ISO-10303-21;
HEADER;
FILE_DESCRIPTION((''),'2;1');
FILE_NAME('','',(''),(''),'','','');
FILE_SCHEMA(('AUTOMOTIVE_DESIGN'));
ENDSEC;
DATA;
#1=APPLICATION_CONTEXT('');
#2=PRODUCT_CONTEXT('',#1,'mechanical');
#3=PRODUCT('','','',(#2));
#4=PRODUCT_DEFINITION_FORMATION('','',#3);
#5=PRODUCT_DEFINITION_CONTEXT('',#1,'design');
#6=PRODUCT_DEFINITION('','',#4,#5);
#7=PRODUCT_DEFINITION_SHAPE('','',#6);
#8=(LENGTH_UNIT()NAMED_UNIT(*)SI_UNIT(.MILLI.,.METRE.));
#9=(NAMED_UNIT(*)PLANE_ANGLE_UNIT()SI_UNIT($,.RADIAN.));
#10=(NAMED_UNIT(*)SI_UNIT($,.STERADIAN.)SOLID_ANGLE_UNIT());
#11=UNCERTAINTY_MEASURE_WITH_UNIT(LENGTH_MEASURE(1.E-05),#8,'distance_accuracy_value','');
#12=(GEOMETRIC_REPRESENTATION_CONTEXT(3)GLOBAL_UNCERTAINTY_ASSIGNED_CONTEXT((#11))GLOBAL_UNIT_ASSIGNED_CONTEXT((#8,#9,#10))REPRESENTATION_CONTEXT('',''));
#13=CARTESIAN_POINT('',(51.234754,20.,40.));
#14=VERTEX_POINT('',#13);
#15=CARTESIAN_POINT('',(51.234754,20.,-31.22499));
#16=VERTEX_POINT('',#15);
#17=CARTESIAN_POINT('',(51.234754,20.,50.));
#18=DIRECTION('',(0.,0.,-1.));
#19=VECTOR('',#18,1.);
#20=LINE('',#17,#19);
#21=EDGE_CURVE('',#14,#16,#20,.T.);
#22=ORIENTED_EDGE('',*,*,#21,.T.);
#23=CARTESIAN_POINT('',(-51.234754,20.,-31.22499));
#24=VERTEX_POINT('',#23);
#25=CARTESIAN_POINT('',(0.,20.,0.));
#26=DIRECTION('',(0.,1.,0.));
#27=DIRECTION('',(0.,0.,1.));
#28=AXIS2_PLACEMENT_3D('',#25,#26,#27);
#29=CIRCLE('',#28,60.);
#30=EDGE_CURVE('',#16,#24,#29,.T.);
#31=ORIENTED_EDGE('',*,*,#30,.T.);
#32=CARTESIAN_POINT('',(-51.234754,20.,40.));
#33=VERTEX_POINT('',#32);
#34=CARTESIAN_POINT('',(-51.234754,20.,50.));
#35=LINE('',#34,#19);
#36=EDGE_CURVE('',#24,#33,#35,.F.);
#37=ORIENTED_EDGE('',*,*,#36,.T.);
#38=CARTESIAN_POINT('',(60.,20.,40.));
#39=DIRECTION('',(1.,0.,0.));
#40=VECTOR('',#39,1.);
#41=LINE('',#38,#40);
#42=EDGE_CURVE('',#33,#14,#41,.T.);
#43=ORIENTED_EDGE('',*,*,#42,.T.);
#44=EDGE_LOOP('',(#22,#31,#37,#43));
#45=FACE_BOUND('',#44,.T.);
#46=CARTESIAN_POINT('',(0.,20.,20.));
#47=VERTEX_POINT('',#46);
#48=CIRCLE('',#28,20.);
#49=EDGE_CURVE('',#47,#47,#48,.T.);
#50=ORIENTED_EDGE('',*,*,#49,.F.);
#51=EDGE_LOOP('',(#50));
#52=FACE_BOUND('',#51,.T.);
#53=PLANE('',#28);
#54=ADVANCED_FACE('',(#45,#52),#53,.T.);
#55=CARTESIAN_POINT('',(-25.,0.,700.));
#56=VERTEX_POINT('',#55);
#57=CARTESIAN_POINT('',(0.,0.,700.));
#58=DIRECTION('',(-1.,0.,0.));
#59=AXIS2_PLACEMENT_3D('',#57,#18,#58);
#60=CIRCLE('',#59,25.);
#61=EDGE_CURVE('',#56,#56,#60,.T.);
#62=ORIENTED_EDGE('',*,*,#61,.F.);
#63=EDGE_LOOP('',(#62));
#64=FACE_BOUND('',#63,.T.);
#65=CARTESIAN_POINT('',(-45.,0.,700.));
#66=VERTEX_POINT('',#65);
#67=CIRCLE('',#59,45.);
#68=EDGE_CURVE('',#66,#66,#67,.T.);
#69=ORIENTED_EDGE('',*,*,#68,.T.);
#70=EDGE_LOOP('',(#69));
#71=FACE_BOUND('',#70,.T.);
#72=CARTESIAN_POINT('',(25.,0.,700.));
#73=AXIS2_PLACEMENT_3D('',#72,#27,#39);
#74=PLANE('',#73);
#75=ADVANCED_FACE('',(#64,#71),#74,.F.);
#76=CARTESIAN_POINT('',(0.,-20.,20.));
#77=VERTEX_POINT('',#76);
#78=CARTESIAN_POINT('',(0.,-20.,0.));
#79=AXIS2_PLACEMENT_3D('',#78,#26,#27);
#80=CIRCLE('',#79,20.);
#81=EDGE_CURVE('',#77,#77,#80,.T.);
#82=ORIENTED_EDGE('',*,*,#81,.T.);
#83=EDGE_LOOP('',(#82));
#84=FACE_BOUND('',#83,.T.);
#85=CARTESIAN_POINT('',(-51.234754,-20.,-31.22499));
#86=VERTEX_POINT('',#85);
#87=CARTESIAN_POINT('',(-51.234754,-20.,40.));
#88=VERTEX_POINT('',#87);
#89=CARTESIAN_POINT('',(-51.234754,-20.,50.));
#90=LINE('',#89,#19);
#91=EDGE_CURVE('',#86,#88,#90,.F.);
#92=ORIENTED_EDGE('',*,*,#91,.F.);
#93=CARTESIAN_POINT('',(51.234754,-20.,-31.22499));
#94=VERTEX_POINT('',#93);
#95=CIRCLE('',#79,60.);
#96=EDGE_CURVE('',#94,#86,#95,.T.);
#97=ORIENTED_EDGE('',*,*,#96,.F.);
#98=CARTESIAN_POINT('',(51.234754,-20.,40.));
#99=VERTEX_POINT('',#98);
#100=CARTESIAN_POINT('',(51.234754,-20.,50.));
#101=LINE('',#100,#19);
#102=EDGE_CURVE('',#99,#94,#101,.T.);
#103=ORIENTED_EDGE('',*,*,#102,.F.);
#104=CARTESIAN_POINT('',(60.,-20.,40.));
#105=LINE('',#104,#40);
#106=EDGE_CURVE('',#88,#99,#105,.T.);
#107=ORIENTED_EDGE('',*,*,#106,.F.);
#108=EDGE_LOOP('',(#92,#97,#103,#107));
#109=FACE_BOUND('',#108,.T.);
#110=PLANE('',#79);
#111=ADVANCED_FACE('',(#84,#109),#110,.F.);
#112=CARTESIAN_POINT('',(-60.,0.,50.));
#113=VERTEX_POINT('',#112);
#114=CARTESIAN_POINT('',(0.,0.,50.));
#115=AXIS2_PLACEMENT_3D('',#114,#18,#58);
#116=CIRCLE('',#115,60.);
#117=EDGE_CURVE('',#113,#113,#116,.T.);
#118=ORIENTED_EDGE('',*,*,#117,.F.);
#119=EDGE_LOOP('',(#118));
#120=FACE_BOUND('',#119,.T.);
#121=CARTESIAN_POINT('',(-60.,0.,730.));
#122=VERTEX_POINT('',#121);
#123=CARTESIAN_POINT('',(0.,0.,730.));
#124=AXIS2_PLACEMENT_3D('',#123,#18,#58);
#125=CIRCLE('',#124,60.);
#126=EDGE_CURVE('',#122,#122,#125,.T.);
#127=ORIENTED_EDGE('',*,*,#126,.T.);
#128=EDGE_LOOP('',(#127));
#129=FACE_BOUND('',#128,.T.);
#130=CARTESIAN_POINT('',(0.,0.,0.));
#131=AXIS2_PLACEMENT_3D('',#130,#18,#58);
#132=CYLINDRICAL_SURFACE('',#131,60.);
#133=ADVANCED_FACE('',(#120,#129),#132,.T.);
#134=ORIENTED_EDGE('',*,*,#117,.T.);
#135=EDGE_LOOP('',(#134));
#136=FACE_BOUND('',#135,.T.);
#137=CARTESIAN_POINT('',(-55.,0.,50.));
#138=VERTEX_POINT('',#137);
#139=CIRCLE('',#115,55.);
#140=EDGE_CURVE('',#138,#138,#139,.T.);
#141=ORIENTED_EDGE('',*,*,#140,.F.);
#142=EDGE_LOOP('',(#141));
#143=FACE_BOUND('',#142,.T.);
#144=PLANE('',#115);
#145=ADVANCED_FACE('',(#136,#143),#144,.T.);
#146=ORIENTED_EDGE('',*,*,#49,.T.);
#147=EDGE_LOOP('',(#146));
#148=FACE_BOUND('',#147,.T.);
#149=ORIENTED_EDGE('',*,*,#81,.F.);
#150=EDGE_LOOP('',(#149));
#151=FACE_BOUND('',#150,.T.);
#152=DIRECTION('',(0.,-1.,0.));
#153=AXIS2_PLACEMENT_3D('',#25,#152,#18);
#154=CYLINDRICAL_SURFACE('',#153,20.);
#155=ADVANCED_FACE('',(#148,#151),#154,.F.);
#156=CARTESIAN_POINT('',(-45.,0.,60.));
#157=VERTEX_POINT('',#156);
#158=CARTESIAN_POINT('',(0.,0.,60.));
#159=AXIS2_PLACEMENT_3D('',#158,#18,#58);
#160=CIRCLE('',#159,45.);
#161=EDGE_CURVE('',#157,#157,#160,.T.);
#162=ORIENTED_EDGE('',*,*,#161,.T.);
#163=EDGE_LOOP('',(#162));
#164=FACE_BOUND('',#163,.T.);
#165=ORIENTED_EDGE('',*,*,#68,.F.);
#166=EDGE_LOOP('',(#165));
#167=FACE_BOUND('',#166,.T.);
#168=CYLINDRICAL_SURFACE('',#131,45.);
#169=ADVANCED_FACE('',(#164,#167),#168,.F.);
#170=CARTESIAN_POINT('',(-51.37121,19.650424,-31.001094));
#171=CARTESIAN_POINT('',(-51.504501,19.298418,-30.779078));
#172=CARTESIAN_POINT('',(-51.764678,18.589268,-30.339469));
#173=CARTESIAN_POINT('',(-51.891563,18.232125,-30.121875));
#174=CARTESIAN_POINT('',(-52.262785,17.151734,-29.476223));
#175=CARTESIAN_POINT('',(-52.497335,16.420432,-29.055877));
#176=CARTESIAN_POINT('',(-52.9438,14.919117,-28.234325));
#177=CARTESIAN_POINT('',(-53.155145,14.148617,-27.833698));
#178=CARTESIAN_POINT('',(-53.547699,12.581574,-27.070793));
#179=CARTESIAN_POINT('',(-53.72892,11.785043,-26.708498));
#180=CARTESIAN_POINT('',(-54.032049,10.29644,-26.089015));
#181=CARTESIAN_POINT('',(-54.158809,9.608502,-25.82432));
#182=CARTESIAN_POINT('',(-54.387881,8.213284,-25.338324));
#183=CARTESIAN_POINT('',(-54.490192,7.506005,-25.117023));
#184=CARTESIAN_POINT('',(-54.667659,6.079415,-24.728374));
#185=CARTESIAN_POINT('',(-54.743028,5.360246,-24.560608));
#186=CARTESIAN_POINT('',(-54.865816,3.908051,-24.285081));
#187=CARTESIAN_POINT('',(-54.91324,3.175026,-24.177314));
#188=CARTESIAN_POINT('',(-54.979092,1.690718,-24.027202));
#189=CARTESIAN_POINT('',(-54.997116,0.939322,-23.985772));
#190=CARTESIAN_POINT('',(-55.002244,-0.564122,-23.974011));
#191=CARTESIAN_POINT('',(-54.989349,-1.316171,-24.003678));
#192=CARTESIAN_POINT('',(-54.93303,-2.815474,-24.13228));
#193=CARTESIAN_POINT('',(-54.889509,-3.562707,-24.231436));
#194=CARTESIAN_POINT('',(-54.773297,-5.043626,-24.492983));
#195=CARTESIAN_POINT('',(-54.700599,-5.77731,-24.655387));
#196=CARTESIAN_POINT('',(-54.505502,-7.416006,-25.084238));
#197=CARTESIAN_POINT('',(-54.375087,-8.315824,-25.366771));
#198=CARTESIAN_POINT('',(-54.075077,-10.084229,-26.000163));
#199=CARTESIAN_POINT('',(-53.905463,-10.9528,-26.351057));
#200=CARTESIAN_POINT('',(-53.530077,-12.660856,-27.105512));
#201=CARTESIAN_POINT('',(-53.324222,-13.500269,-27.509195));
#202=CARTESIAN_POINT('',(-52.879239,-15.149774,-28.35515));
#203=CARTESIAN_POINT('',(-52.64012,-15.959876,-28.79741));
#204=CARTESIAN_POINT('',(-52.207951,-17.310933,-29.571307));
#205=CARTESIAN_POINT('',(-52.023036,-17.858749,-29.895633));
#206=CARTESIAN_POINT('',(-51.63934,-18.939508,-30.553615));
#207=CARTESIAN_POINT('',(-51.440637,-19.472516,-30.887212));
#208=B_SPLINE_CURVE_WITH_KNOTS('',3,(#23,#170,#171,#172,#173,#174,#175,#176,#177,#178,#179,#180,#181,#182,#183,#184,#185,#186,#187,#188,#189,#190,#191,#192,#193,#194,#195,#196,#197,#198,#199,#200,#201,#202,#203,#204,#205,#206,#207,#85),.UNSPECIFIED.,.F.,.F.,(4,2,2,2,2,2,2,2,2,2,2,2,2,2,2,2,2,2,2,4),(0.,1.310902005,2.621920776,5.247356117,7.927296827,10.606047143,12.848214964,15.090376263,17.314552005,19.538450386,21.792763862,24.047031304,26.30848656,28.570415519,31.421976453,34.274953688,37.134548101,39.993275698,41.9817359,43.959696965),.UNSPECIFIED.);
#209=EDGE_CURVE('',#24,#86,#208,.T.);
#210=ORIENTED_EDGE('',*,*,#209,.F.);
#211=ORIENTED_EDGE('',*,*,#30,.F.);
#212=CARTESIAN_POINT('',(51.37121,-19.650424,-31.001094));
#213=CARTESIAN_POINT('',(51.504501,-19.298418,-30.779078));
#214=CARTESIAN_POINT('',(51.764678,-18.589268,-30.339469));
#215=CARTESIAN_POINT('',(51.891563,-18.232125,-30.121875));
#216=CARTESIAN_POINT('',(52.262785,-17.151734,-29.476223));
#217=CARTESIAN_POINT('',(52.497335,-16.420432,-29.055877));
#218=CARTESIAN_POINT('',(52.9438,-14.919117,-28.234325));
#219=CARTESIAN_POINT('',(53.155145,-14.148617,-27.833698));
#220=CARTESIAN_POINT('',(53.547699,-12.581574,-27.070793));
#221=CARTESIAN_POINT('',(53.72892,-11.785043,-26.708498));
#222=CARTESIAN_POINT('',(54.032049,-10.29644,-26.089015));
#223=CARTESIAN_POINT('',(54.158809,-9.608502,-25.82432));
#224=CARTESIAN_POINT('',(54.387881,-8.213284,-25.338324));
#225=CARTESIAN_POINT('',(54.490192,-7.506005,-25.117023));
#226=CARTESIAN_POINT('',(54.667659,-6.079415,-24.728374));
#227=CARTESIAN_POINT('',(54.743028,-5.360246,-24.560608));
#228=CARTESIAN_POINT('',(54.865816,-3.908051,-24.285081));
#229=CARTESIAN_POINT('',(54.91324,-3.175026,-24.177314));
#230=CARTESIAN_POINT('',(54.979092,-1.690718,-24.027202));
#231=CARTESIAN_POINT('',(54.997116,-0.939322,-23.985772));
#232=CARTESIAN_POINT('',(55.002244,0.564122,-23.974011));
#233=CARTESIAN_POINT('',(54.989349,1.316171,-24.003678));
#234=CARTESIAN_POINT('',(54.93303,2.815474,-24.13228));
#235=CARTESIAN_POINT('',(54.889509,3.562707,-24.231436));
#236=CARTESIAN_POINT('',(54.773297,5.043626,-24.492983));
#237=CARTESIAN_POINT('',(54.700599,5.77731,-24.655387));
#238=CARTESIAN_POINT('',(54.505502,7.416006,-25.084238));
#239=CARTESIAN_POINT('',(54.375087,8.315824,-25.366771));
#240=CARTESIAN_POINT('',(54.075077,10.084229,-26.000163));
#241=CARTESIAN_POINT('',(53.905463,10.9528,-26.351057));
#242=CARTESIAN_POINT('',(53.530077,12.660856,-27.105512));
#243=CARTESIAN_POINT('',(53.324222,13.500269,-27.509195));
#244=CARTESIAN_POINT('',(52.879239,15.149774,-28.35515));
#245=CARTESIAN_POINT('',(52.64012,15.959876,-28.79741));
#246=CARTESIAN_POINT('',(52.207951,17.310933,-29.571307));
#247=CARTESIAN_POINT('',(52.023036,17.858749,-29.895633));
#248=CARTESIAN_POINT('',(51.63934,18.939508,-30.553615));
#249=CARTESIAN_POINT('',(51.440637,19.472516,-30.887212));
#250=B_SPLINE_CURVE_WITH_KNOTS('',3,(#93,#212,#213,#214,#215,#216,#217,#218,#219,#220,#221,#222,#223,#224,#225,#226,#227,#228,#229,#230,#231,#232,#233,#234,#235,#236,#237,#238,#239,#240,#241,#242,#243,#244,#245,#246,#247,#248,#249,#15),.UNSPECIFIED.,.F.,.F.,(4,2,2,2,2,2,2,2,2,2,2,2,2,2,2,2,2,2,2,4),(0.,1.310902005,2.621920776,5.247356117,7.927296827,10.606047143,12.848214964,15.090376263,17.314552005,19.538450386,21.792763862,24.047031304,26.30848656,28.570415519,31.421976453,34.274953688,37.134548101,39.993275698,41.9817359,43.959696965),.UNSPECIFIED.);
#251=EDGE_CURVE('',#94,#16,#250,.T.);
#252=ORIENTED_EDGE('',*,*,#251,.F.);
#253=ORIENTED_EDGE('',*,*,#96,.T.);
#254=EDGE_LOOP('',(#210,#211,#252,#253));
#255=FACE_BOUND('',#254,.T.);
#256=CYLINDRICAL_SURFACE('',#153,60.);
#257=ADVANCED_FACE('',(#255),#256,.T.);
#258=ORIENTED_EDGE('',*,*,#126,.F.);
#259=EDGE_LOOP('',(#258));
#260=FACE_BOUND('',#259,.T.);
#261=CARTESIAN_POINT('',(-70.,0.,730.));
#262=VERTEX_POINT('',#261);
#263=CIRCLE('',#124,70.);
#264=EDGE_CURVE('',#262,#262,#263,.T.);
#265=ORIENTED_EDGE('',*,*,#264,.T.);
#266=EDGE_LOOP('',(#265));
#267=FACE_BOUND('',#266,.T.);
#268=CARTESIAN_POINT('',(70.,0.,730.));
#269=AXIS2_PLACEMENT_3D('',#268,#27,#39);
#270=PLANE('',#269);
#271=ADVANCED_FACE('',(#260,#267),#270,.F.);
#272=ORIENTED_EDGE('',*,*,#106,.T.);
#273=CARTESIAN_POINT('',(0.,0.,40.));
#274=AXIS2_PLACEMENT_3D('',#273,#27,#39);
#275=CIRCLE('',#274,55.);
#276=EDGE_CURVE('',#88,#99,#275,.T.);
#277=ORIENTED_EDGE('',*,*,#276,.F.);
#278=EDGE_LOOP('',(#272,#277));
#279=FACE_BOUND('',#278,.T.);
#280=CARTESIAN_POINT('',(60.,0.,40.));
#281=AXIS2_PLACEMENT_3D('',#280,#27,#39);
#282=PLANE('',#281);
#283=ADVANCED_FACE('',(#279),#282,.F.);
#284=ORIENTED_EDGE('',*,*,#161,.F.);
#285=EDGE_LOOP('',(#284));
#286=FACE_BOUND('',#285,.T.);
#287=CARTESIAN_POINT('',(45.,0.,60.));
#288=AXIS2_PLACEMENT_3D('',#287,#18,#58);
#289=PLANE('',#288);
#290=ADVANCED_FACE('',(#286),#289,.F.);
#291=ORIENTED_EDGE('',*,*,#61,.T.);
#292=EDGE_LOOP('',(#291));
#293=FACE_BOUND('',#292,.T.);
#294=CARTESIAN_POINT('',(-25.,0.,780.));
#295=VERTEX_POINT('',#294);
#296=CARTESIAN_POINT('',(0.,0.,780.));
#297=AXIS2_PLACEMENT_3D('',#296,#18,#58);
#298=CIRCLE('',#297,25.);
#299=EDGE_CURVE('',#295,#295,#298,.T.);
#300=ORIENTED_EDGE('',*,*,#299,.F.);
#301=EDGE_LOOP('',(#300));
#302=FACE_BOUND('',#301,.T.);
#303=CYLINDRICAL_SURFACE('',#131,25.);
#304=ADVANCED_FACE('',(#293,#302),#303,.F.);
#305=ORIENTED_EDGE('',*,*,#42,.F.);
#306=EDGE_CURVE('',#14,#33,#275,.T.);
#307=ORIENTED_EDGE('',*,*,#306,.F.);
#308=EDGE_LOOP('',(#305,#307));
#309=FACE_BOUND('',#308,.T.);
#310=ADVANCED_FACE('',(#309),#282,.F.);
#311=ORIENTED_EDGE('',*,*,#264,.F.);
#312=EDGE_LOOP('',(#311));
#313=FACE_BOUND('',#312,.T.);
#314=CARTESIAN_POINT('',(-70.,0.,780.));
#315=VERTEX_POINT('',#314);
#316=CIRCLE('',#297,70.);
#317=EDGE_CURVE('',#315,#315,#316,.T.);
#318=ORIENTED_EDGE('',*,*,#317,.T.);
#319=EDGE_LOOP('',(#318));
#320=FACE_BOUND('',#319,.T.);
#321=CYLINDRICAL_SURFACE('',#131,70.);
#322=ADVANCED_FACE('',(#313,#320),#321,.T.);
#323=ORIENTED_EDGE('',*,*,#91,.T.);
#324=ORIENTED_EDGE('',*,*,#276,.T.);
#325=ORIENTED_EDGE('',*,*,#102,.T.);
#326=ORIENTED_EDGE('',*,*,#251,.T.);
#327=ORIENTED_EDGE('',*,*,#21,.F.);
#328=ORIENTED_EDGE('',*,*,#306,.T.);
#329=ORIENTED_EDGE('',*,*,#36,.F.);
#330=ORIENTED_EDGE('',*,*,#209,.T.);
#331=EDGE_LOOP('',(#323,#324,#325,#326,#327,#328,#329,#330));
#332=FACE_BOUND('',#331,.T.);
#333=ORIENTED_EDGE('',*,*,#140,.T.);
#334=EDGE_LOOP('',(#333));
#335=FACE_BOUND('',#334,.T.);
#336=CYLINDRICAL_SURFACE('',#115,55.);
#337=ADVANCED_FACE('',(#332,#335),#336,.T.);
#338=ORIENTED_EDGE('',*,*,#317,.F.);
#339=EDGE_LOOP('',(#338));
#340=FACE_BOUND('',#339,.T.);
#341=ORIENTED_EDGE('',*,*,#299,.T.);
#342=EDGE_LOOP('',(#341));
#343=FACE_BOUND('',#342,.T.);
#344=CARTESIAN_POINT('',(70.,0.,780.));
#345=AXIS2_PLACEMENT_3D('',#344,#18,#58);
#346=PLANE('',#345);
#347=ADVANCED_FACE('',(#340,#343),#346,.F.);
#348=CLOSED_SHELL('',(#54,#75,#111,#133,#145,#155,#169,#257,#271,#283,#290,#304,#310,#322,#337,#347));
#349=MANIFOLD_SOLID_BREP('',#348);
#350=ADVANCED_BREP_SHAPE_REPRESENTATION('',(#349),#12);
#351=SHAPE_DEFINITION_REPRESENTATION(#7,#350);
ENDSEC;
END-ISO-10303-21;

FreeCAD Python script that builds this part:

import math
import FreeCAD as App
import Part
import Sketcher

V = App.Vector

doc = App.newDocument("Part")
body = doc.addObject("PartDesign::Body", "Body")

sketch1 = body.newObject("Sketcher::SketchObject", "Sketch")
sketch1.AttachmentSupport = (doc.getObject("XZ_Plane"), [""])
sketch1.MapMode = "FlatFace"
sketch1.addGeometry(Part.LineSegment(V(70, 780, 0), V(70, 730, 0)), False)
sketch1.addGeometry(Part.LineSegment(V(70, 730, 0), V(60, 730, 0)), False)
sketch1.addGeometry(Part.LineSegment(V(60, 730, 0), V(60, 40, 0)), False)
sketch1.addGeometry(Part.LineSegment(V(60, 40, 0), V(0, 40, 0)), False)
sketch1.addGeometry(Part.LineSegment(V(0, 40, 0), V(0, 60, 0)), False)
sketch1.addGeometry(Part.LineSegment(V(0, 60, 0), V(45, 60, 0)), False)
sketch1.addGeometry(Part.LineSegment(V(45, 60, 0), V(45, 700, 0)), False)
sketch1.addGeometry(Part.LineSegment(V(45, 700, 0), V(25, 700, 0)), False)
sketch1.addGeometry(Part.LineSegment(V(25, 700, 0), V(25, 780, 0)), False)
sketch1.addGeometry(Part.LineSegment(V(25, 780, 0), V(70, 780, 0)), False)
sketch1.addConstraint(Sketcher.Constraint("Coincident", 0, 2, 1, 1))
sketch1.addConstraint(Sketcher.Constraint("Coincident", 1, 2, 2, 1))
sketch1.addConstraint(Sketcher.Constraint("Coincident", 2, 2, 3, 1))
sketch1.addConstraint(Sketcher.Constraint("Coincident", 3, 2, 4, 1))
sketch1.addConstraint(Sketcher.Constraint("Coincident", 4, 2, 5, 1))
sketch1.addConstraint(Sketcher.Constraint("Coincident", 5, 2, 6, 1))
sketch1.addConstraint(Sketcher.Constraint("Coincident", 6, 2, 7, 1))
sketch1.addConstraint(Sketcher.Constraint("Coincident", 7, 2, 8, 1))
sketch1.addConstraint(Sketcher.Constraint("Coincident", 8, 2, 9, 1))
sketch1.addConstraint(Sketcher.Constraint("Coincident", 9, 2, 0, 1))
sketch1.addConstraint(Sketcher.Constraint("Vertical", 0))
sketch1.addConstraint(Sketcher.Constraint("Horizontal", 1))
sketch1.addConstraint(Sketcher.Constraint("Vertical", 2))
sketch1.addConstraint(Sketcher.Constraint("Horizontal", 3))
sketch1.addConstraint(Sketcher.Constraint("Vertical", 4))
sketch1.addConstraint(Sketcher.Constraint("Horizontal", 5))
sketch1.addConstraint(Sketcher.Constraint("Vertical", 6))
sketch1.addConstraint(Sketcher.Constraint("Horizontal", 7))
sketch1.addConstraint(Sketcher.Constraint("Vertical", 8))
sketch1.addConstraint(Sketcher.Constraint("Horizontal", 9))
sketch1.addConstraint(Sketcher.Constraint("PointOnObject", 3, 2, -2))
sketch1.addConstraint(Sketcher.Constraint("Equal", 5, 9))
sketch1.addConstraint(Sketcher.Constraint("Equal", 7, 4))
sketch1.addConstraint(Sketcher.Constraint("DistanceX", 1, 2, 1, 1, 10.0))
sketch1.addConstraint(Sketcher.Constraint("DistanceX", 3, 2, 3, 1, 60.0))
sketch1.addConstraint(Sketcher.Constraint("DistanceX", 5, 1, 5, 2, 45.0))
sketch1.addConstraint(Sketcher.Constraint("DistanceY", 0, 2, 0, 1, 50.0))
sketch1.addConstraint(Sketcher.Constraint("DistanceY", 2, 2, 2, 1, 690.0))
sketch1.addConstraint(Sketcher.Constraint("DistanceY", 6, 1, 6, 2, 640.0))
sketch1.addConstraint(Sketcher.Constraint("DistanceY", -1, 1, 0, 2, 730.0))
revolution = body.newObject("PartDesign::Revolution", "Revolution")
revolution.Profile = sketch1
revolution.ReferenceAxis = (sketch1, ["V_Axis"])
revolution.Angle = 360

sketch2 = body.newObject("Sketcher::SketchObject", "Sketch001")
sketch2.AttachmentSupport = (doc.getObject("XZ_Plane"), [""])
sketch2.MapMode = "FlatFace"
sketch2.addGeometry(Part.LineSegment(V(60, 40, 0), V(60, 0, 0)), False)
sketch2.addGeometry(Part.ArcOfCircle(Part.Circle(V(0, 0, 0), V(0, 0, 1), 60), math.radians(180), math.radians(360)), False)
sketch2.addGeometry(Part.LineSegment(V(-60, 0, 0), V(-60, 40, 0)), False)
sketch2.addGeometry(Part.LineSegment(V(-60, 40, 0), V(60, 40, 0)), False)
sketch2.addGeometry(Part.Circle(V(0, 0, 0), V(0, 0, 1), 20), False)
sketch2.addConstraint(Sketcher.Constraint("Tangent", 0, 2, 1, 2))
sketch2.addConstraint(Sketcher.Constraint("Tangent", 1, 1, 2, 1))
sketch2.addConstraint(Sketcher.Constraint("Coincident", 2, 2, 3, 1))
sketch2.addConstraint(Sketcher.Constraint("Coincident", 3, 2, 0, 1))
sketch2.addConstraint(Sketcher.Constraint("Vertical", 0))
sketch2.addConstraint(Sketcher.Constraint("Vertical", 2))
sketch2.addConstraint(Sketcher.Constraint("Horizontal", 3))
sketch2.addConstraint(Sketcher.Constraint("Coincident", 1, 3, -1, 1))
sketch2.addConstraint(Sketcher.Constraint("Coincident", 4, 3, -1, 1))
sketch2.addConstraint(Sketcher.Constraint("Diameter", 4, 40.0))
sketch2.addConstraint(Sketcher.Constraint("Radius", 1, 60.0))
sketch2.addConstraint(Sketcher.Constraint("DistanceY", 0, 2, 0, 1, 40.0))
pad1 = body.newObject("PartDesign::Pad", "Pad")
pad1.Profile = sketch2
pad1.Length = 40
pad1.Midplane = True

sketch3 = body.newObject("Sketcher::SketchObject", "Sketch002")
sketch3.AttachmentSupport = (doc.getObject("XY_Plane"), [""])
sketch3.MapMode = "FlatFace"
sketch3.AttachmentOffset = App.Placement(V(0, 0, 40), App.Rotation())
sketch3.addGeometry(Part.Circle(V(0, 0, 0), V(0, 0, 1), 63), False)
sketch3.addGeometry(Part.Circle(V(0, 0, 0), V(0, 0, 1), 55), False)
sketch3.addConstraint(Sketcher.Constraint("Coincident", 0, 3, -1, 1))
sketch3.addConstraint(Sketcher.Constraint("Coincident", 1, 3, -1, 1))
sketch3.addConstraint(Sketcher.Constraint("Diameter", 1, 110.0))
sketch3.addConstraint(Sketcher.Constraint("Diameter", 0, 126.491106))
pocket1 = body.newObject("PartDesign::Pocket", "Pocket")
pocket1.Profile = sketch3
pocket1.Type = "TwoLengths"
pocket1.Length = 101
pocket1.Length2 = 10

doc.recompute()
